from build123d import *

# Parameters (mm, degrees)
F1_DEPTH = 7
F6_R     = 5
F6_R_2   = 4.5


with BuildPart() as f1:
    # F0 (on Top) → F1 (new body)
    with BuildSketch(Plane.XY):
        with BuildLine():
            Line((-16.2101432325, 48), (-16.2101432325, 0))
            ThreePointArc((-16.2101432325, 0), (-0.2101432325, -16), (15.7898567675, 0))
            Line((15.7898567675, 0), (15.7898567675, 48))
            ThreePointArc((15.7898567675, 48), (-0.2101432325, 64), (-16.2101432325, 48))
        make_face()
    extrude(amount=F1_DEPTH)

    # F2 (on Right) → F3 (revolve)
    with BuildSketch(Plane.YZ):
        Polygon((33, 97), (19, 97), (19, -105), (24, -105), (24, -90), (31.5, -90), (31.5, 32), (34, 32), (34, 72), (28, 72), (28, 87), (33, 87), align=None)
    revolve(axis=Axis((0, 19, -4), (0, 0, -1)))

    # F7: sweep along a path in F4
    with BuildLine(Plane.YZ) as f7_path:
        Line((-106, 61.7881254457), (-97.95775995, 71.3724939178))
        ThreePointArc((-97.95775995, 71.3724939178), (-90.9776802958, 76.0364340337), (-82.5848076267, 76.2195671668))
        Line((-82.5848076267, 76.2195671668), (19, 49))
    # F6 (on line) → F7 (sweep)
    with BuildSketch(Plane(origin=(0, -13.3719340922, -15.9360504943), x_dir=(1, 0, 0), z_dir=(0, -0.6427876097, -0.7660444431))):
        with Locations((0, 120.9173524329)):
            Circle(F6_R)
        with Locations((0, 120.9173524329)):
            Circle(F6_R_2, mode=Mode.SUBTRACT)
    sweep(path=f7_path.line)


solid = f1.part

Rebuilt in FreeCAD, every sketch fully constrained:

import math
import FreeCAD as App
import Part
import Sketcher
Q = App.Units.Quantity


def add_polygon(sketch, points):
    """Adds a closed chain of lines whose ends are joined by coincident constraints."""
    first, n = sketch.GeometryCount, len(points)
    for a, b in zip(points, points[1:] + points[:1]):
        sketch.addGeometry(Part.LineSegment(App.Vector(*a, 0), App.Vector(*b, 0)), False)
    for i in range(n):
        sketch.addConstraint(Sketcher.Constraint("Coincident", first + i, 2, first + (i + 1) % n, 1))

doc = App.newDocument("Part")
params = doc.addObject("Spreadsheet::Sheet", "Params")
for row, (alias, value) in enumerate([
    ("sketch1_radius", "16 mm"),
    ("sketch1_height", "48 mm"),
    ("pad1_length", "7 mm"),
    ("sketch2_width", "14 mm"),
    ("sketch2_width2", "5 mm"),
    ("sketch2_width3", "6 mm"),
    ("sketch2_height", "202 mm"),
    ("sketch2_height2", "15 mm"),
    ("revolution_angle", "360 deg"),
    ("sketch3_diameter", "10 mm"),
    ("sketch3_diameter2", "9 mm"),
    ("sketch4_radius", "15 mm"),
], start=1):
    params.set(f"A{row}", alias)
    params.set(f"B{row}", "=" + value)
    params.setAlias(f"B{row}", alias)

body = doc.addObject("PartDesign::Body", "Body")

# Sketch on XY plane
sketch1 = body.newObject("Sketcher::SketchObject", "Sketch")
sketch1.AttachmentSupport = (doc.getObject("XY_Plane"), [""])
sketch1.MapMode = "FlatFace"
sketch1.addGeometry(Part.LineSegment(App.Vector(-16, 48, 0), App.Vector(-16, 0, 0)), False)
sketch1.addGeometry(Part.ArcOfCircle(Part.Circle(App.Vector(0, 0, 0), App.Vector(0, 0, 1), 16), math.radians(180), math.radians(360)), False)
sketch1.addGeometry(Part.LineSegment(App.Vector(16, 0, 0), App.Vector(16, 48, 0)), False)
sketch1.addGeometry(Part.ArcOfCircle(Part.Circle(App.Vector(0, 48, 0), App.Vector(0, 0, 1), 16), math.radians(0), math.radians(180)), False)
sketch1.addConstraint(Sketcher.Constraint("Tangent", 0, 2, 1, 1))
sketch1.addConstraint(Sketcher.Constraint("Tangent", 1, 2, 2, 1))
sketch1.addConstraint(Sketcher.Constraint("Tangent", 2, 2, 3, 1))
sketch1.addConstraint(Sketcher.Constraint("Tangent", 3, 2, 0, 1))
sketch1.addConstraint(Sketcher.Constraint("Vertical", 0))
sketch1.addConstraint(Sketcher.Constraint("Vertical", 2))
sketch1.addConstraint(Sketcher.Constraint("PointOnObject", 1, 3, -1))
sketch1.addConstraint(Sketcher.Constraint("Radius", 1, 16.0))
sketch1.addConstraint(Sketcher.Constraint("DistanceY", 0, 2, 0, 1, 48.0))
sketch1.addConstraint(Sketcher.Constraint("DistanceX", 1, 3, -1, 1, 0.210143))
sketch1.setExpression("Constraints[7]", "Params.sketch1_radius")
sketch1.setExpression("Constraints[8]", "Params.sketch1_height")
pad1 = body.newObject("PartDesign::Pad", "Pad")
pad1.Profile = sketch1
pad1.setExpression("Length", "Params.pad1_length")

# Sketch on YZ plane
sketch2 = body.newObject("Sketcher::SketchObject", "Sketch001")
sketch2.AttachmentSupport = (doc.getObject("YZ_Plane"), [""])
sketch2.MapMode = "FlatFace"
add_polygon(sketch2, [(33, 97), (19, 97), (19, -105), (24, -105), (24, -90), (31.5, -90), (31.5, 32), (34, 32), (34, 72), (28, 72), (28, 87), (33, 87)])  # lines 0-11
sketch2.addGeometry(Part.LineSegment(App.Vector(19, 97, 0), App.Vector(19, -105, 0)), True)  # axis
sketch2.addConstraint(Sketcher.Constraint("Horizontal", 0))
sketch2.addConstraint(Sketcher.Constraint("Vertical", 1))
sketch2.addConstraint(Sketcher.Constraint("Horizontal", 2))
sketch2.addConstraint(Sketcher.Constraint("Vertical", 3))
sketch2.addConstraint(Sketcher.Constraint("Horizontal", 4))
sketch2.addConstraint(Sketcher.Constraint("Vertical", 5))
sketch2.addConstraint(Sketcher.Constraint("Horizontal", 6))
sketch2.addConstraint(Sketcher.Constraint("Vertical", 7))
sketch2.addConstraint(Sketcher.Constraint("Horizontal", 8))
sketch2.addConstraint(Sketcher.Constraint("Vertical", 9))
sketch2.addConstraint(Sketcher.Constraint("Horizontal", 10))
sketch2.addConstraint(Sketcher.Constraint("Vertical", 11))
sketch2.addConstraint(Sketcher.Constraint("Vertical", 12))
sketch2.addConstraint(Sketcher.Constraint("Coincident", 12, 1, 0, 2))
sketch2.addConstraint(Sketcher.Constraint("Horizontal", 2, 2, 12, 2))
sketch2.addConstraint(Sketcher.Constraint("Equal", 2, 10))
sketch2.addConstraint(Sketcher.Constraint("Equal", 3, 9))
sketch2.addConstraint(Sketcher.Constraint("DistanceX", 0, 2, 0, 1, 14.0))
sketch2.addConstraint(Sketcher.Constraint("DistanceX", 2, 1, 2, 2, 5.0))
sketch2.addConstraint(Sketcher.Constraint("DistanceX", 8, 2, 8, 1, 6.0))
sketch2.addConstraint(Sketcher.Constraint("DistanceY", 1, 2, 1, 1, 202.0))
sketch2.addConstraint(Sketcher.Constraint("DistanceY", 3, 1, 3, 2, 15.0))
sketch2.addConstraint(Sketcher.Constraint("DistanceY", 5, 1, 5, 2, 122.0))
sketch2.addConstraint(Sketcher.Constraint("DistanceY", 7, 1, 7, 2, 40.0))
sketch2.addConstraint(Sketcher.Constraint("DistanceX", 4, 1, 4, 2, 7.5))
sketch2.addConstraint(Sketcher.Constraint("DistanceX", -1, 1, 0, 2, 19.0))
sketch2.addConstraint(Sketcher.Constraint("DistanceY", -1, 1, 0, 2, 97.0))
sketch2.setExpression("Constraints[29]", "Params.sketch2_width")
sketch2.setExpression("Constraints[30]", "Params.sketch2_width2")
sketch2.setExpression("Constraints[31]", "Params.sketch2_width3")
sketch2.setExpression("Constraints[32]", "Params.sketch2_height")
sketch2.setExpression("Constraints[33]", "Params.sketch2_height2")
revolution = body.newObject("PartDesign::Revolution", "Revolution")
revolution.Profile = sketch2
revolution.ReferenceAxis = (sketch2, ["Axis0"])
revolution.setExpression("Angle", "Params.revolution_angle")

# Sketch on an angled plane
sketch3 = body.newObject("Sketcher::SketchObject", "Sketch002")
sketch3.Placement = App.Placement(App.Vector(0, -13.371934, -15.93605), App.Rotation(App.Vector(1, 0, 0), App.Vector(0, -0.766044443, 0.64278761), App.Vector(0, -0.64278761, -0.766044443), "ZXY"))
sketch3.addGeometry(Part.Circle(App.Vector(0, 120.9, 0), App.Vector(0, 0, 1), 5), False)
sketch3.addGeometry(Part.Circle(App.Vector(0, 120.9, 0), App.Vector(0, 0, 1), 4.5), False)
sketch3.addConstraint(Sketcher.Constraint("Coincident", 1, 3, 0, 3))
sketch3.addConstraint(Sketcher.Constraint("PointOnObject", 0, 3, -2))
sketch3.addConstraint(Sketcher.Constraint("Diameter", 0, 10.0))
sketch3.addConstraint(Sketcher.Constraint("Diameter", 1, 9.0))
sketch3.addConstraint(Sketcher.Constraint("DistanceY", -1, 1, 0, 3, 120.917352))
sketch3.setExpression("Constraints[2]", "Params.sketch3_diameter")
sketch3.setExpression("Constraints[3]", "Params.sketch3_diameter2")

# Sketch on YZ plane
sketch4 = body.newObject("Sketcher::SketchObject", "Sketch003")
sketch4.AttachmentSupport = (doc.getObject("YZ_Plane"), [""])
sketch4.MapMode = "FlatFace"
sketch4.addGeometry(Part.LineSegment(App.Vector(-106, 62, 0), App.Vector(-98, 71, 0)), False)
sketch4.addGeometry(Part.ArcOfCircle(Part.Circle(App.Vector(-86, 62, 0), App.Vector(0, 0, 1), 15), math.radians(75), math.radians(140)), False)
sketch4.addGeometry(Part.LineSegment(App.Vector(-83, 76, 0), App.Vector(19, 49, 0)), False)
sketch4.addConstraint(Sketcher.Constraint("Tangent", 0, 2, 1, 2))
sketch4.addConstraint(Sketcher.Constraint("Tangent", 1, 1, 2, 1))
sketch4.addConstraint(Sketcher.Constraint("Radius", 1, 15.0))
sketch4.addConstraint(Sketcher.Constraint("Angle", 0, Q("50 deg")))
sketch4.addConstraint(Sketcher.Constraint("Angle", 2, Q("-15 deg")))
sketch4.addConstraint(Sketcher.Constraint("DistanceX", 0, 1, -1, 1, 106.0))
sketch4.addConstraint(Sketcher.Constraint("DistanceX", -1, 1, 2, 2, 19.0))
sketch4.addConstraint(Sketcher.Constraint("DistanceY", -1, 1, 2, 2, 49.0))
sketch4.addConstraint(Sketcher.Constraint("Distance", 2, 105.168332))
sketch4.setExpression("Constraints[2]", "Params.sketch4_radius")
doc.recompute()

additivepipe = body.newObject("PartDesign::AdditivePipe", "AdditivePipe")
additivepipe.Profile = sketch3
additivepipe.Spine = (sketch4, ["Edge1", "Edge2", "Edge3"])

doc.recompute()
